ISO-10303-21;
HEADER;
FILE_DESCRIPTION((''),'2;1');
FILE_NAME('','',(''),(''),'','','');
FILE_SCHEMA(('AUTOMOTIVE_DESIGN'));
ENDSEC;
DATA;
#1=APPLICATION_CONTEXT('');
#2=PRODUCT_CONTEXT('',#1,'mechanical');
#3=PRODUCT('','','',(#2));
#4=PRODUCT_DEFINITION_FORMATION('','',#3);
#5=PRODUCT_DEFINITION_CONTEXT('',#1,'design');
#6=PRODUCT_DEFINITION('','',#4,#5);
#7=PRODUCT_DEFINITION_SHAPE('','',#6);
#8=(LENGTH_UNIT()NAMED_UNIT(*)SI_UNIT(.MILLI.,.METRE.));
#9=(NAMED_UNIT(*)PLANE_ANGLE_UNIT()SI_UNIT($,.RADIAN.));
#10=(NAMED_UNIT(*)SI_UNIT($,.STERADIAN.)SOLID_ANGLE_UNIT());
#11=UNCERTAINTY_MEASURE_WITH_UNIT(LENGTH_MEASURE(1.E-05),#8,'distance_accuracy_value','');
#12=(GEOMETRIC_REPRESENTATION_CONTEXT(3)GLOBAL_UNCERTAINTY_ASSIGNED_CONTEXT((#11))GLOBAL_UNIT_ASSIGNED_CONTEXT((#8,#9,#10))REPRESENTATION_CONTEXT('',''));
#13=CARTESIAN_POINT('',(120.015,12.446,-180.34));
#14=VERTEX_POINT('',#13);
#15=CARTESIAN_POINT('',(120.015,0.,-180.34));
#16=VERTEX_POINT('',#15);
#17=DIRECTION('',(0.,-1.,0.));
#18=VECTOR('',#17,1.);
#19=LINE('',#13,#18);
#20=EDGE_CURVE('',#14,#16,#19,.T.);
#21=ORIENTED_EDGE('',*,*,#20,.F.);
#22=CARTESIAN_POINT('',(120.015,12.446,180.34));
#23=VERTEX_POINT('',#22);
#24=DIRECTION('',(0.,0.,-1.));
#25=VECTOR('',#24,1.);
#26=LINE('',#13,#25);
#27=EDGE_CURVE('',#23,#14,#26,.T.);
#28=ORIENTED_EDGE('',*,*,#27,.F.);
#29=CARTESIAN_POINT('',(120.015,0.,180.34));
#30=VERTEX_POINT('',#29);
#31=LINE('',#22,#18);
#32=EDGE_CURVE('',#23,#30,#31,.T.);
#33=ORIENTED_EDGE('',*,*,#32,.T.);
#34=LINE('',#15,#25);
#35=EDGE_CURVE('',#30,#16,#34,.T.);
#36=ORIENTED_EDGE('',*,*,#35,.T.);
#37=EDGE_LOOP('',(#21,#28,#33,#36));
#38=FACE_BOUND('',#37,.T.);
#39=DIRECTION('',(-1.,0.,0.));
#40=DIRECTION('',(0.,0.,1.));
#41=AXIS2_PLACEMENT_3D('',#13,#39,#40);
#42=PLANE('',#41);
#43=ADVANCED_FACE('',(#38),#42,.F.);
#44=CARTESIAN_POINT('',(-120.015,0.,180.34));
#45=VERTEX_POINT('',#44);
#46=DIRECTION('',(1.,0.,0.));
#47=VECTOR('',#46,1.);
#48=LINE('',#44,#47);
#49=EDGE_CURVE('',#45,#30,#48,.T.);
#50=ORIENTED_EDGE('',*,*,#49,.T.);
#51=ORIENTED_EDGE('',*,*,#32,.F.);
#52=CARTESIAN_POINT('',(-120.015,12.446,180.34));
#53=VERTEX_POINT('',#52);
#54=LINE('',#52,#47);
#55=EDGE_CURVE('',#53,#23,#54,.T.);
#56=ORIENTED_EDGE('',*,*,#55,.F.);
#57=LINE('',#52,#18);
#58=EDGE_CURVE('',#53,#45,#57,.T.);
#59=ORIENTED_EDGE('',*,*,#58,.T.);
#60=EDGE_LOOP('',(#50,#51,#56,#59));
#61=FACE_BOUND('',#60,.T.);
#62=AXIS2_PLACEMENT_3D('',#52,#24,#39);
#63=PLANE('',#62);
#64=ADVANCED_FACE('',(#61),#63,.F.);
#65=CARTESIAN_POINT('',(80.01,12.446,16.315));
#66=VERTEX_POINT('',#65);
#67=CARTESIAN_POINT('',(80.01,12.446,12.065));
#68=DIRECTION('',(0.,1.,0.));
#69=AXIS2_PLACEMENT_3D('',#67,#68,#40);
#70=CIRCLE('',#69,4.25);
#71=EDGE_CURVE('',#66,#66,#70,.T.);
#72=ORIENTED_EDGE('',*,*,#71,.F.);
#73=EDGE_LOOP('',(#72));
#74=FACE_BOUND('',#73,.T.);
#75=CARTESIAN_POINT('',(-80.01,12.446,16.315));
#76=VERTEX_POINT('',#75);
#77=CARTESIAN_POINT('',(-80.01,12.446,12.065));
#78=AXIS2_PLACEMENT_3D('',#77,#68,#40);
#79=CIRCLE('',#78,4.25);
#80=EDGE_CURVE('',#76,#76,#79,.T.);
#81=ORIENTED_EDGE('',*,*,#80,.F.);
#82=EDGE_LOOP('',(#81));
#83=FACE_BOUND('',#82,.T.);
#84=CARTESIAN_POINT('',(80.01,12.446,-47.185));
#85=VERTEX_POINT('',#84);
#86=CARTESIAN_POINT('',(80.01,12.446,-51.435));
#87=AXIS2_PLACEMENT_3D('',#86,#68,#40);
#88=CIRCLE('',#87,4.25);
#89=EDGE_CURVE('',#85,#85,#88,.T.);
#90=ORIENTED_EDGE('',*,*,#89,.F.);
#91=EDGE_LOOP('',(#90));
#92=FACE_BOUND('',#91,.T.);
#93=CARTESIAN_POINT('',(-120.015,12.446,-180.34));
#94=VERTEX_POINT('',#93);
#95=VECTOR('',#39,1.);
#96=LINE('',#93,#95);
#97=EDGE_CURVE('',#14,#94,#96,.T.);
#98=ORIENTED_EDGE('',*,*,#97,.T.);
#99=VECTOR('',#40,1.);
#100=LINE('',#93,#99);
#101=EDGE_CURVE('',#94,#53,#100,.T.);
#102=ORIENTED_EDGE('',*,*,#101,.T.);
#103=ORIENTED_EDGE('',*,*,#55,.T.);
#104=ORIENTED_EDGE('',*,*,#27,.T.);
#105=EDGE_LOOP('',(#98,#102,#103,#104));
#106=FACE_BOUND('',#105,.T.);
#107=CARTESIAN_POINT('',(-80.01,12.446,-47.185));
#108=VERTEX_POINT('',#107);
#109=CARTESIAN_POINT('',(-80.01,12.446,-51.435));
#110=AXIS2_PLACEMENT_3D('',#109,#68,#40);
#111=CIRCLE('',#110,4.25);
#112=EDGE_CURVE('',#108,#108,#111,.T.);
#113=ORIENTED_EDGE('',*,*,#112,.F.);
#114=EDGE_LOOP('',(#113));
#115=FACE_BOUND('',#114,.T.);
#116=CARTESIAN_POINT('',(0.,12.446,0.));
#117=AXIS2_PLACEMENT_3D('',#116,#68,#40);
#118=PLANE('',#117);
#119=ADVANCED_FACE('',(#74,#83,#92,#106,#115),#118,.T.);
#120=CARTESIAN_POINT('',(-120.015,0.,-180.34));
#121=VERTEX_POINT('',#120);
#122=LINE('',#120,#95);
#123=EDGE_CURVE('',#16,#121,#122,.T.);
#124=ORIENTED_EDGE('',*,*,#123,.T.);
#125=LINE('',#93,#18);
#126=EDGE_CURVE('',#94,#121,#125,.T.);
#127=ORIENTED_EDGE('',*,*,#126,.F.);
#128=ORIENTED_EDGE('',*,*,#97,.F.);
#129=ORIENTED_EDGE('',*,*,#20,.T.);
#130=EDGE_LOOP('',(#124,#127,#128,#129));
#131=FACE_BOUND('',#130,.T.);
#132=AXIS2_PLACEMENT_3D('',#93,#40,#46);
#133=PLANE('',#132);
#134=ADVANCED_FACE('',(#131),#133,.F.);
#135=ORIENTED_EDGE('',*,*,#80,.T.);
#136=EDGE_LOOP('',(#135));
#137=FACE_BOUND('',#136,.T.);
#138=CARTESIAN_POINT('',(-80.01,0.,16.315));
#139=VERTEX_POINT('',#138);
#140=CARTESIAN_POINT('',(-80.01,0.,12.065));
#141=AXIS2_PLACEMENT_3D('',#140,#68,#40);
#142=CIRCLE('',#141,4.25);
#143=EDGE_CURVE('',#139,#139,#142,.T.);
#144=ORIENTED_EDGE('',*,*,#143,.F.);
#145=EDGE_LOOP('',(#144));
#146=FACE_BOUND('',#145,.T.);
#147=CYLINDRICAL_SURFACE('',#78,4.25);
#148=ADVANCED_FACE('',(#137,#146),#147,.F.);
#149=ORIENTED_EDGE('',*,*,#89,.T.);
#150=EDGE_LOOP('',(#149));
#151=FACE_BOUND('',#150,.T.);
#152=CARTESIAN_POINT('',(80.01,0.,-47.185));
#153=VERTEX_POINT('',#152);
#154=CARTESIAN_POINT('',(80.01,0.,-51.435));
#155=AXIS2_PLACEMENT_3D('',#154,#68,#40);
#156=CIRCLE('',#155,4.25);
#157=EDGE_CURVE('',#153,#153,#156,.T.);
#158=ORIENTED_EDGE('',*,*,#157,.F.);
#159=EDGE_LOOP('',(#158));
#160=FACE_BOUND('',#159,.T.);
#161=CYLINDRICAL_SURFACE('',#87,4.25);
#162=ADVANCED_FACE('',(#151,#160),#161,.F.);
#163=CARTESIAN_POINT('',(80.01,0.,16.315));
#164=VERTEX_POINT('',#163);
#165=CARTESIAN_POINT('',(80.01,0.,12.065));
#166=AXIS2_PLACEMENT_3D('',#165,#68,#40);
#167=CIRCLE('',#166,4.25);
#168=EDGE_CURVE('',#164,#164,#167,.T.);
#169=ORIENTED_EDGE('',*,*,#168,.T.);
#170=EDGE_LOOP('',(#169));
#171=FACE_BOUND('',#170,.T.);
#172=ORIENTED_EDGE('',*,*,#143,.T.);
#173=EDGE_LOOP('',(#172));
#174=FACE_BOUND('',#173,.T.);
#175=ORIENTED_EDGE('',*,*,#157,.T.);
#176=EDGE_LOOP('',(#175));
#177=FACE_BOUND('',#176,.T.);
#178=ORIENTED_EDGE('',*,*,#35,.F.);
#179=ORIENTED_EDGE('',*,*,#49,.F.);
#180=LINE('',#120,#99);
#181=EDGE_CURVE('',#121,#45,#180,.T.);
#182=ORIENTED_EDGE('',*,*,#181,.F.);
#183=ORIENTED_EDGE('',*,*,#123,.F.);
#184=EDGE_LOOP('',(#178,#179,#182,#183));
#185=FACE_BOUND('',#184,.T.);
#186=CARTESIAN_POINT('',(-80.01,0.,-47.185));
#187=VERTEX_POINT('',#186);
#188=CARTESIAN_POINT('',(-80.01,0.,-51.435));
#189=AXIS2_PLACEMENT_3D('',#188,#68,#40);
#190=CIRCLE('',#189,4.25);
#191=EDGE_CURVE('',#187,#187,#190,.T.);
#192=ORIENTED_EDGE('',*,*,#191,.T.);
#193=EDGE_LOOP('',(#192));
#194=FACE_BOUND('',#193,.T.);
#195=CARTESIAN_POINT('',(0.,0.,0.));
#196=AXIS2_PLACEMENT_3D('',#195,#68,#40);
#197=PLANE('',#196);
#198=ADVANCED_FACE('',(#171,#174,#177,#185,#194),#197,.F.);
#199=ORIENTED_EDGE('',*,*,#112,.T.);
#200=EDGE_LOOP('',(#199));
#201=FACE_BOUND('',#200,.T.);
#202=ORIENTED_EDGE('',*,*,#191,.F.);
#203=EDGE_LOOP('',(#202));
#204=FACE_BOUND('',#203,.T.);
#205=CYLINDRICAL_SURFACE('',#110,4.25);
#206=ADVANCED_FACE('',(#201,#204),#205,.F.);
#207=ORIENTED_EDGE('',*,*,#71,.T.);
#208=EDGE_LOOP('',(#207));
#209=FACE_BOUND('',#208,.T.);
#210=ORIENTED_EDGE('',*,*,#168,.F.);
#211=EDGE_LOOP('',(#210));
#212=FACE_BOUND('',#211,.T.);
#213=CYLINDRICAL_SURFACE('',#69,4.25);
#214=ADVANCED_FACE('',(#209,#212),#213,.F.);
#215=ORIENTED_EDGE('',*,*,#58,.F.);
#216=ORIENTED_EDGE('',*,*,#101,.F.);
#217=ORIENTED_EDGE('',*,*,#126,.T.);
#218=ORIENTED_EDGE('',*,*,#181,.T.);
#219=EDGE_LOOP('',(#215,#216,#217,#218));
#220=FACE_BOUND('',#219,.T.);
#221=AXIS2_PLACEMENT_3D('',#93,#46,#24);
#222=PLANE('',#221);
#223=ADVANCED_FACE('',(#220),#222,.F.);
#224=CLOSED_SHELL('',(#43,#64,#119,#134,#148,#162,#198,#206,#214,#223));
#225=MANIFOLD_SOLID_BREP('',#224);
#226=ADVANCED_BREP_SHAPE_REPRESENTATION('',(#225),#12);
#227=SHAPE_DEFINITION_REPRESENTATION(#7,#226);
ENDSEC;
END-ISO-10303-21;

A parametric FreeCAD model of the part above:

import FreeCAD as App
import Part
import Sketcher
Q = App.Units.Quantity

doc = App.newDocument("Part")
params = doc.addObject("Spreadsheet::Sheet", "Params")
for row, (alias, value) in enumerate([
    ("sketch1_height", "14.2 in"),
    ("sketch1_width", "9.45 in"),
    ("pad1_length", "0.49 in"),
    ("hole_diameter", "8.5 mm"),
], start=1):
    params.set(f"A{row}", alias)
    params.set(f"B{row}", "=" + value)
    params.setAlias(f"B{row}", alias)

body = doc.addObject("PartDesign::Body", "Body")

# Sketch on XZ plane
sketch1 = body.newObject("Sketcher::SketchObject", "Sketch")
sketch1.AttachmentSupport = (doc.getObject("XZ_Plane"), [""])
sketch1.MapMode = "FlatFace"
sketch1.addGeometry([
    Part.LineSegment(App.Vector(-120, -180, 0), App.Vector(-120, 180, 0)),
    Part.LineSegment(App.Vector(-120, 180, 0), App.Vector(120, 180, 0)),
    Part.LineSegment(App.Vector(120, 180, 0), App.Vector(120, -180, 0)),
    Part.LineSegment(App.Vector(120, -180, 0), App.Vector(-120, -180, 0)),
], False)
sketch1.addConstraint([
    Sketcher.Constraint("Coincident", 0, 2, 1, 1),
    Sketcher.Constraint("Coincident", 1, 2, 2, 1),
    Sketcher.Constraint("Coincident", 2, 2, 3, 1),
    Sketcher.Constraint("Coincident", 3, 2, 0, 1),
    Sketcher.Constraint("Vertical", 0),
    Sketcher.Constraint("Horizontal", 1),
    Sketcher.Constraint("Vertical", 2),
    Sketcher.Constraint("Horizontal", 3),
    Sketcher.Constraint("Symmetric", 0, 2, 2, 2, -1, 1),
    Sketcher.Constraint("DistanceY", 0, 1, 0, 2, Q("14.2 in")),
    Sketcher.Constraint("DistanceX", 1, 1, 1, 2, Q("9.45 in")),
])
sketch1.setExpression("Constraints[9]", "Params.sketch1_height")
sketch1.setExpression("Constraints[10]", "Params.sketch1_width")
pad1 = body.newObject("PartDesign::Pad", "Pad")
pad1.Profile = sketch1
pad1.setExpression("Length", "Params.pad1_length")
pad1.Reversed = True

# Sketch on XZ plane
sketch2 = body.newObject("Sketcher::SketchObject", "Sketch001")
sketch2.AttachmentSupport = (doc.getObject("XZ_Plane"), [""])
sketch2.MapMode = "FlatFace"
sketch2.AttachmentOffset = App.Placement(App.Vector(0, 0, -0.49 * 25.4), App.Rotation())
sketch2.addGeometry([
    Part.Circle(App.Vector(80, -51.4, 0), App.Vector(0, 0, 1), 4.2),
    Part.Circle(App.Vector(80, 12.1, 0), App.Vector(0, 0, 1), 4.2),
], False)
sketch2.addConstraint([
    Sketcher.Constraint("Equal", 0, 1),
    Sketcher.Constraint("Vertical", 0, 3, 1, 3),
    Sketcher.Constraint("DistanceY", 0, 3, 1, 3, Q("2.5 in")),
    Sketcher.Constraint("Diameter", 0, 8.5),
    Sketcher.Constraint("DistanceX", -1, 1, 0, 3, Q("3.15 in")),
    Sketcher.Constraint("DistanceY", 0, 3, -1, 1, Q("2.025 in")),
])
doc.recompute()
hole = body.newObject("PartDesign::Hole", "Hole")
hole.Profile = sketch2
hole.ThreadType = "None"
hole.setExpression("Diameter", "Params.hole_diameter")
hole.DepthType = "ThroughAll"
hole.Reversed = True
doc.recompute()

mirrored = body.newObject("PartDesign::Mirrored", "Mirrored")
mirrored.Originals = [hole]
mirrored.MirrorPlane = (doc.getObject("YZ_Plane"), [""])
body.Tip = mirrored

doc.recompute()
